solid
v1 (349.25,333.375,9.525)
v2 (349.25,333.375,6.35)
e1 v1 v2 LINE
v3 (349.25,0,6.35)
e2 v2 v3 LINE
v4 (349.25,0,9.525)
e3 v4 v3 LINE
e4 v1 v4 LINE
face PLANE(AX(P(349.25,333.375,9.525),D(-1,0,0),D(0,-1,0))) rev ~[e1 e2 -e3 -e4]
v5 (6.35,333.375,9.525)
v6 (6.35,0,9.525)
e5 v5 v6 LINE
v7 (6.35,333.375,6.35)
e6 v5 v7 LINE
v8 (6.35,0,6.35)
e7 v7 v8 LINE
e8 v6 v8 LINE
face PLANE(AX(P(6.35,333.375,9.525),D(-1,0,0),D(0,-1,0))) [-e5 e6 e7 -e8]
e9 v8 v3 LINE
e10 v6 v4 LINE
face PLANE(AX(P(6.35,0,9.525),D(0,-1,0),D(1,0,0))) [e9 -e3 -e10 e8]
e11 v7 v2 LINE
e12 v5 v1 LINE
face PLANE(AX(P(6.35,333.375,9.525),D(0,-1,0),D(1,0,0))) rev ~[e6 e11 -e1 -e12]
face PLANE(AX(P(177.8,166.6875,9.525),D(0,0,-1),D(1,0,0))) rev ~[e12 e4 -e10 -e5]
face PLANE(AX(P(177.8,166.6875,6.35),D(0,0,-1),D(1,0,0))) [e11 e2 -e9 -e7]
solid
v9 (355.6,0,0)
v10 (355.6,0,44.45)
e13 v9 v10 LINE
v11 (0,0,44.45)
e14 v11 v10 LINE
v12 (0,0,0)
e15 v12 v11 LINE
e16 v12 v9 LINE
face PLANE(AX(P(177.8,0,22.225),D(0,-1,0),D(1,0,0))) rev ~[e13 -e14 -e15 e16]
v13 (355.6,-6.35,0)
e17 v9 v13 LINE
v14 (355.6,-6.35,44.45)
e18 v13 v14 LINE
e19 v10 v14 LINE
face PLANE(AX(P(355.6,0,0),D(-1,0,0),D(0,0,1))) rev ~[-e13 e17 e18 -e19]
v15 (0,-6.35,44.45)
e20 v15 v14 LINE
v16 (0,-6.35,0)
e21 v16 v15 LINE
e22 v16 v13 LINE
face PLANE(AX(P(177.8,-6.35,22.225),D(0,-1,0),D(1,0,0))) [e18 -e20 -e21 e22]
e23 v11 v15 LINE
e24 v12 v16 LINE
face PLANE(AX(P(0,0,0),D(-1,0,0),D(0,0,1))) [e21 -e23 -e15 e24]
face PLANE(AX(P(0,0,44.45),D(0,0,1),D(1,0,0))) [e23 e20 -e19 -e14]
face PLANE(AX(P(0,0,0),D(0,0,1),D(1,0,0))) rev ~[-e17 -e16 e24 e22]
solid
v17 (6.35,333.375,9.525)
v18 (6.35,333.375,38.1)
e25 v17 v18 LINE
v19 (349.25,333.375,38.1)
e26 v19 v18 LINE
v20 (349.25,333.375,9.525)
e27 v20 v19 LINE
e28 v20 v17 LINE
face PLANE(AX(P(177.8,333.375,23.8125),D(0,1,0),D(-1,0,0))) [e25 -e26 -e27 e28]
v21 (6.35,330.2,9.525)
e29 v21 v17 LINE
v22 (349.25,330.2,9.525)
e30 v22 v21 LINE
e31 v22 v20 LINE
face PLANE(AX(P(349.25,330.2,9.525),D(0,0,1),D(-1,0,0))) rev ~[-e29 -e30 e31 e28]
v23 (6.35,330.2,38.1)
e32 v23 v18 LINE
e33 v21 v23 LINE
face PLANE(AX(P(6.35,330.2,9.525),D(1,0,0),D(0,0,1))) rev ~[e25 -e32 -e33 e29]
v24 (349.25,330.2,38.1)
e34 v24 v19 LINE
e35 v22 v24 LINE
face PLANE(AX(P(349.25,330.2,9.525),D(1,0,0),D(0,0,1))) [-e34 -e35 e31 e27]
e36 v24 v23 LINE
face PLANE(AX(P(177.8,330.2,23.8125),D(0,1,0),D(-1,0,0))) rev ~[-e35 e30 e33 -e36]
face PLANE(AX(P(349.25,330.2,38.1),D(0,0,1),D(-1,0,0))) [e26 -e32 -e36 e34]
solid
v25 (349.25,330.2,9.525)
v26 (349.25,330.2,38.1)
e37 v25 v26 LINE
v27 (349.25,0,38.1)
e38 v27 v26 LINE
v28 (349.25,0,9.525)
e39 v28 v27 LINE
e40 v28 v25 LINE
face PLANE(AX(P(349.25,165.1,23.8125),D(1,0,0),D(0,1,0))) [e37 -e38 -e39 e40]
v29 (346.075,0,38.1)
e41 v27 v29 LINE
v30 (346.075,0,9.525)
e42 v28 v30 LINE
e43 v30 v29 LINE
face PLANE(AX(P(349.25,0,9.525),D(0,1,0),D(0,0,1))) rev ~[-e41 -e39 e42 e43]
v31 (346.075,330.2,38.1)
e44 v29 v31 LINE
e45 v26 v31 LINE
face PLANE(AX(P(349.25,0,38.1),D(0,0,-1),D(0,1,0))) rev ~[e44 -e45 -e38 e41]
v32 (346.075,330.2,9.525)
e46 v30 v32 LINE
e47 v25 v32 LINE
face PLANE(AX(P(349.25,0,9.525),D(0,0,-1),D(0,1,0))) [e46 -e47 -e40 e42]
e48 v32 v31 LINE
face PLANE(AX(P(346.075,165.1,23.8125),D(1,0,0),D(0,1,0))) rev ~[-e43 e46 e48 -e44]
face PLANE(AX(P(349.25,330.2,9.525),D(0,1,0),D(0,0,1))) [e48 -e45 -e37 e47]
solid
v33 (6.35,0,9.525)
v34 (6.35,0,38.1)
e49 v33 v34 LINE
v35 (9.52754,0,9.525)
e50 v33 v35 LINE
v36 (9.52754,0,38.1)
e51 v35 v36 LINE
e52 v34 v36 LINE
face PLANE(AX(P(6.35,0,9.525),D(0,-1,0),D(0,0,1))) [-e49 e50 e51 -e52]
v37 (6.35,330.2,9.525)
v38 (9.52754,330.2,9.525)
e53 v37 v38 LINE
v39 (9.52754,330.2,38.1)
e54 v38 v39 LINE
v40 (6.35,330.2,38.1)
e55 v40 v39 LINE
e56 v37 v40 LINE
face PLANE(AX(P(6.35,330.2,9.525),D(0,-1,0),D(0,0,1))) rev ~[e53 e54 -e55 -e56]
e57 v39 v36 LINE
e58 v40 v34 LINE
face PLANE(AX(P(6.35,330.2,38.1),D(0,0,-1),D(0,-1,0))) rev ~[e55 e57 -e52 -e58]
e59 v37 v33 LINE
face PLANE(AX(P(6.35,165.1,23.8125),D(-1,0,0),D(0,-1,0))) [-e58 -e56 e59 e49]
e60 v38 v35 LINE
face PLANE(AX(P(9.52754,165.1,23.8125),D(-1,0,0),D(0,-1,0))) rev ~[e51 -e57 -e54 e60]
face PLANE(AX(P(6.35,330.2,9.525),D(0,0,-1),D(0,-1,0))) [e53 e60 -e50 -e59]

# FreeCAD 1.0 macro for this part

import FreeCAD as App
import Part
import Sketcher
from FreeCAD import Vector
Q = App.Units.Quantity


def add_polygon(sketch, points):
    """Adds a closed chain of lines whose ends are joined by coincident constraints."""
    first, n = sketch.GeometryCount, len(points)
    for a, b in zip(points, points[1:] + points[:1]):
        sketch.addGeometry(Part.LineSegment(App.Vector(*a, 0), App.Vector(*b, 0)), False)
    for i in range(n):
        sketch.addConstraint(Sketcher.Constraint("Coincident", first + i, 2, first + (i + 1) % n, 1))

doc = App.newDocument("Part")
body = doc.addObject("PartDesign::Body", "Body")

# Sketch on XZ plane
sketch1 = body.newObject("Sketcher::SketchObject", "Sketch")
sketch1.AttachmentSupport = (doc.getObject("XZ_Plane"), [""])
sketch1.MapMode = "FlatFace"
add_polygon(sketch1, [(0, 44.45), (0, 0), (355.6, 0), (355.6, 44.45)])  # lines 0-3
sketch1.addConstraint(Sketcher.Constraint("Vertical", 0))
sketch1.addConstraint(Sketcher.Constraint("Horizontal", 1))
sketch1.addConstraint(Sketcher.Constraint("Vertical", 2))
sketch1.addConstraint(Sketcher.Constraint("Horizontal", 3))
sketch1.addConstraint(Sketcher.Constraint("Coincident", 0, 2, -1, 1))
sketch1.addConstraint(Sketcher.Constraint("DistanceX", 1, 1, 1, 2, Q("14 in")))
sketch1.addConstraint(Sketcher.Constraint("DistanceY", 0, 2, 0, 1, Q("1.75 in")))
pad1 = body.newObject("PartDesign::Pad", "Pad")
pad1.Profile = sketch1
pad1.Length = Q("0.25 in")
body2 = doc.addObject("PartDesign::Body", "Body001")

# Sketch on YZ plane
sketch2 = body2.newObject("Sketcher::SketchObject", "Sketch001")
sketch2.AttachmentSupport = (doc.getObject("YZ_Plane001"), [""])
sketch2.MapMode = "FlatFace"
sketch2.AttachmentOffset = App.Placement(Vector(0, 0, 13.75 * 25.4), App.Rotation())
add_polygon(sketch2, [(0, 38.1), (0, 9.525), (330.2, 9.525), (330.2, 38.1)])  # lines 0-3
sketch2.addConstraint(Sketcher.Constraint("Vertical", 0))
sketch2.addConstraint(Sketcher.Constraint("Horizontal", 1))
sketch2.addConstraint(Sketcher.Constraint("Vertical", 2))
sketch2.addConstraint(Sketcher.Constraint("Horizontal", 3))
sketch2.addConstraint(Sketcher.Constraint("PointOnObject", 0, 2, -2))
sketch2.addConstraint(Sketcher.Constraint("DistanceX", 1, 1, 1, 2, Q("13 in")))
sketch2.addConstraint(Sketcher.Constraint("DistanceY", -1, 1, 2, 2, Q("1.5 in")))
sketch2.addConstraint(Sketcher.Constraint("DistanceY", 0, 2, 0, 1, Q("1.125 in")))
pad2 = body2.newObject("PartDesign::Pad", "Pad001")
pad2.Profile = sketch2
pad2.Length = Q("0.125 in")
pad2.Reversed = True
body3 = doc.addObject("PartDesign::Body", "Body002")

# Sketch on YZ plane
sketch3 = body3.newObject("Sketcher::SketchObject", "Sketch002")
sketch3.AttachmentSupport = (doc.getObject("YZ_Plane002"), [""])
sketch3.MapMode = "FlatFace"
sketch3.AttachmentOffset = App.Placement(Vector(0, 0, 0.25 * 25.4), App.Rotation())
add_polygon(sketch3, [(330.2, 38.1), (330.2, 9.525), (0, 9.525), (0, 38.1)])  # lines 0-3
sketch3.addConstraint(Sketcher.Constraint("Vertical", 0))
sketch3.addConstraint(Sketcher.Constraint("Horizontal", 1))
sketch3.addConstraint(Sketcher.Constraint("Vertical", 2))
sketch3.addConstraint(Sketcher.Constraint("Horizontal", 3))
sketch3.addConstraint(Sketcher.Constraint("PointOnObject", 1, 2, -2))
sketch3.addConstraint(Sketcher.Constraint("DistanceX", 1, 2, 1, 1, Q("13 in")))
sketch3.addConstraint(Sketcher.Constraint("DistanceY", -1, 1, 2, 2, Q("1.5 in")))
sketch3.addConstraint(Sketcher.Constraint("DistanceY", 0, 2, 0, 1, Q("1.125 in")))
pad3 = body3.newObject("PartDesign::Pad", "Pad002")
pad3.Profile = sketch3
pad3.Length = Q("0.1251 in")
body4 = doc.addObject("PartDesign::Body", "Body003")

# Sketch on XZ plane
sketch4 = body4.newObject("Sketcher::SketchObject", "Sketch003")
sketch4.AttachmentSupport = (doc.getObject("XZ_Plane003"), [""])
sketch4.MapMode = "FlatFace"
sketch4.AttachmentOffset = App.Placement(Vector(0, 0, -13 * 25.4), App.Rotation())
add_polygon(sketch4, [(349.25, 38.1), (349.25, 9.525), (6.35, 9.525), (6.35, 38.1)])  # lines 0-3
sketch4.addConstraint(Sketcher.Constraint("Vertical", 0))
sketch4.addConstraint(Sketcher.Constraint("Horizontal", 1))
sketch4.addConstraint(Sketcher.Constraint("Vertical", 2))
sketch4.addConstraint(Sketcher.Constraint("Horizontal", 3))
sketch4.addConstraint(Sketcher.Constraint("DistanceX", 1, 2, 1, 1, Q("13.5 in")))
sketch4.addConstraint(Sketcher.Constraint("DistanceY", -1, 1, 2, 2, Q("1.5 in")))
sketch4.addConstraint(Sketcher.Constraint("DistanceY", 0, 2, 0, 1, Q("1.125 in")))
sketch4.addConstraint(Sketcher.Constraint("DistanceX", -1, 1, 0, 2, Q("13.75 in")))
pad4 = body4.newObject("PartDesign::Pad", "Pad003")
pad4.Profile = sketch4
pad4.Length = Q("0.125 in")
pad4.Reversed = True
body5 = doc.addObject("PartDesign::Body", "Body004")

# Sketch on XY plane
sketch5 = body5.newObject("Sketcher::SketchObject", "Sketch004")
sketch5.AttachmentSupport = (doc.getObject("XY_Plane004"), [""])
sketch5.MapMode = "FlatFace"
sketch5.AttachmentOffset = App.Placement(Vector(0, 0, 0.375 * 25.4), App.Rotation())
add_polygon(sketch5, [(6.35, 0), (6.35, 333.375), (349.25, 333.375), (349.25, 0)])  # lines 0-3
sketch5.addConstraint(Sketcher.Constraint("Vertical", 0))
sketch5.addConstraint(Sketcher.Constraint("Horizontal", 1))
sketch5.addConstraint(Sketcher.Constraint("Vertical", 2))
sketch5.addConstraint(Sketcher.Constraint("Horizontal", 3))
sketch5.addConstraint(Sketcher.Constraint("PointOnObject", 2, 2, -1))
sketch5.addConstraint(Sketcher.Constraint("DistanceX", 1, 1, 1, 2, Q("13.5 in")))
sketch5.addConstraint(Sketcher.Constraint("DistanceY", 0, 1, 0, 2, Q("13.125 in")))
sketch5.addConstraint(Sketcher.Constraint("DistanceX", -1, 1, 0, 2, Q("0.25 in")))
pad5 = body5.newObject("PartDesign::Pad", "Pad004")
pad5.Profile = sketch5
pad5.Length = Q("0.125 in")
pad5.Reversed = True

doc.recompute()
